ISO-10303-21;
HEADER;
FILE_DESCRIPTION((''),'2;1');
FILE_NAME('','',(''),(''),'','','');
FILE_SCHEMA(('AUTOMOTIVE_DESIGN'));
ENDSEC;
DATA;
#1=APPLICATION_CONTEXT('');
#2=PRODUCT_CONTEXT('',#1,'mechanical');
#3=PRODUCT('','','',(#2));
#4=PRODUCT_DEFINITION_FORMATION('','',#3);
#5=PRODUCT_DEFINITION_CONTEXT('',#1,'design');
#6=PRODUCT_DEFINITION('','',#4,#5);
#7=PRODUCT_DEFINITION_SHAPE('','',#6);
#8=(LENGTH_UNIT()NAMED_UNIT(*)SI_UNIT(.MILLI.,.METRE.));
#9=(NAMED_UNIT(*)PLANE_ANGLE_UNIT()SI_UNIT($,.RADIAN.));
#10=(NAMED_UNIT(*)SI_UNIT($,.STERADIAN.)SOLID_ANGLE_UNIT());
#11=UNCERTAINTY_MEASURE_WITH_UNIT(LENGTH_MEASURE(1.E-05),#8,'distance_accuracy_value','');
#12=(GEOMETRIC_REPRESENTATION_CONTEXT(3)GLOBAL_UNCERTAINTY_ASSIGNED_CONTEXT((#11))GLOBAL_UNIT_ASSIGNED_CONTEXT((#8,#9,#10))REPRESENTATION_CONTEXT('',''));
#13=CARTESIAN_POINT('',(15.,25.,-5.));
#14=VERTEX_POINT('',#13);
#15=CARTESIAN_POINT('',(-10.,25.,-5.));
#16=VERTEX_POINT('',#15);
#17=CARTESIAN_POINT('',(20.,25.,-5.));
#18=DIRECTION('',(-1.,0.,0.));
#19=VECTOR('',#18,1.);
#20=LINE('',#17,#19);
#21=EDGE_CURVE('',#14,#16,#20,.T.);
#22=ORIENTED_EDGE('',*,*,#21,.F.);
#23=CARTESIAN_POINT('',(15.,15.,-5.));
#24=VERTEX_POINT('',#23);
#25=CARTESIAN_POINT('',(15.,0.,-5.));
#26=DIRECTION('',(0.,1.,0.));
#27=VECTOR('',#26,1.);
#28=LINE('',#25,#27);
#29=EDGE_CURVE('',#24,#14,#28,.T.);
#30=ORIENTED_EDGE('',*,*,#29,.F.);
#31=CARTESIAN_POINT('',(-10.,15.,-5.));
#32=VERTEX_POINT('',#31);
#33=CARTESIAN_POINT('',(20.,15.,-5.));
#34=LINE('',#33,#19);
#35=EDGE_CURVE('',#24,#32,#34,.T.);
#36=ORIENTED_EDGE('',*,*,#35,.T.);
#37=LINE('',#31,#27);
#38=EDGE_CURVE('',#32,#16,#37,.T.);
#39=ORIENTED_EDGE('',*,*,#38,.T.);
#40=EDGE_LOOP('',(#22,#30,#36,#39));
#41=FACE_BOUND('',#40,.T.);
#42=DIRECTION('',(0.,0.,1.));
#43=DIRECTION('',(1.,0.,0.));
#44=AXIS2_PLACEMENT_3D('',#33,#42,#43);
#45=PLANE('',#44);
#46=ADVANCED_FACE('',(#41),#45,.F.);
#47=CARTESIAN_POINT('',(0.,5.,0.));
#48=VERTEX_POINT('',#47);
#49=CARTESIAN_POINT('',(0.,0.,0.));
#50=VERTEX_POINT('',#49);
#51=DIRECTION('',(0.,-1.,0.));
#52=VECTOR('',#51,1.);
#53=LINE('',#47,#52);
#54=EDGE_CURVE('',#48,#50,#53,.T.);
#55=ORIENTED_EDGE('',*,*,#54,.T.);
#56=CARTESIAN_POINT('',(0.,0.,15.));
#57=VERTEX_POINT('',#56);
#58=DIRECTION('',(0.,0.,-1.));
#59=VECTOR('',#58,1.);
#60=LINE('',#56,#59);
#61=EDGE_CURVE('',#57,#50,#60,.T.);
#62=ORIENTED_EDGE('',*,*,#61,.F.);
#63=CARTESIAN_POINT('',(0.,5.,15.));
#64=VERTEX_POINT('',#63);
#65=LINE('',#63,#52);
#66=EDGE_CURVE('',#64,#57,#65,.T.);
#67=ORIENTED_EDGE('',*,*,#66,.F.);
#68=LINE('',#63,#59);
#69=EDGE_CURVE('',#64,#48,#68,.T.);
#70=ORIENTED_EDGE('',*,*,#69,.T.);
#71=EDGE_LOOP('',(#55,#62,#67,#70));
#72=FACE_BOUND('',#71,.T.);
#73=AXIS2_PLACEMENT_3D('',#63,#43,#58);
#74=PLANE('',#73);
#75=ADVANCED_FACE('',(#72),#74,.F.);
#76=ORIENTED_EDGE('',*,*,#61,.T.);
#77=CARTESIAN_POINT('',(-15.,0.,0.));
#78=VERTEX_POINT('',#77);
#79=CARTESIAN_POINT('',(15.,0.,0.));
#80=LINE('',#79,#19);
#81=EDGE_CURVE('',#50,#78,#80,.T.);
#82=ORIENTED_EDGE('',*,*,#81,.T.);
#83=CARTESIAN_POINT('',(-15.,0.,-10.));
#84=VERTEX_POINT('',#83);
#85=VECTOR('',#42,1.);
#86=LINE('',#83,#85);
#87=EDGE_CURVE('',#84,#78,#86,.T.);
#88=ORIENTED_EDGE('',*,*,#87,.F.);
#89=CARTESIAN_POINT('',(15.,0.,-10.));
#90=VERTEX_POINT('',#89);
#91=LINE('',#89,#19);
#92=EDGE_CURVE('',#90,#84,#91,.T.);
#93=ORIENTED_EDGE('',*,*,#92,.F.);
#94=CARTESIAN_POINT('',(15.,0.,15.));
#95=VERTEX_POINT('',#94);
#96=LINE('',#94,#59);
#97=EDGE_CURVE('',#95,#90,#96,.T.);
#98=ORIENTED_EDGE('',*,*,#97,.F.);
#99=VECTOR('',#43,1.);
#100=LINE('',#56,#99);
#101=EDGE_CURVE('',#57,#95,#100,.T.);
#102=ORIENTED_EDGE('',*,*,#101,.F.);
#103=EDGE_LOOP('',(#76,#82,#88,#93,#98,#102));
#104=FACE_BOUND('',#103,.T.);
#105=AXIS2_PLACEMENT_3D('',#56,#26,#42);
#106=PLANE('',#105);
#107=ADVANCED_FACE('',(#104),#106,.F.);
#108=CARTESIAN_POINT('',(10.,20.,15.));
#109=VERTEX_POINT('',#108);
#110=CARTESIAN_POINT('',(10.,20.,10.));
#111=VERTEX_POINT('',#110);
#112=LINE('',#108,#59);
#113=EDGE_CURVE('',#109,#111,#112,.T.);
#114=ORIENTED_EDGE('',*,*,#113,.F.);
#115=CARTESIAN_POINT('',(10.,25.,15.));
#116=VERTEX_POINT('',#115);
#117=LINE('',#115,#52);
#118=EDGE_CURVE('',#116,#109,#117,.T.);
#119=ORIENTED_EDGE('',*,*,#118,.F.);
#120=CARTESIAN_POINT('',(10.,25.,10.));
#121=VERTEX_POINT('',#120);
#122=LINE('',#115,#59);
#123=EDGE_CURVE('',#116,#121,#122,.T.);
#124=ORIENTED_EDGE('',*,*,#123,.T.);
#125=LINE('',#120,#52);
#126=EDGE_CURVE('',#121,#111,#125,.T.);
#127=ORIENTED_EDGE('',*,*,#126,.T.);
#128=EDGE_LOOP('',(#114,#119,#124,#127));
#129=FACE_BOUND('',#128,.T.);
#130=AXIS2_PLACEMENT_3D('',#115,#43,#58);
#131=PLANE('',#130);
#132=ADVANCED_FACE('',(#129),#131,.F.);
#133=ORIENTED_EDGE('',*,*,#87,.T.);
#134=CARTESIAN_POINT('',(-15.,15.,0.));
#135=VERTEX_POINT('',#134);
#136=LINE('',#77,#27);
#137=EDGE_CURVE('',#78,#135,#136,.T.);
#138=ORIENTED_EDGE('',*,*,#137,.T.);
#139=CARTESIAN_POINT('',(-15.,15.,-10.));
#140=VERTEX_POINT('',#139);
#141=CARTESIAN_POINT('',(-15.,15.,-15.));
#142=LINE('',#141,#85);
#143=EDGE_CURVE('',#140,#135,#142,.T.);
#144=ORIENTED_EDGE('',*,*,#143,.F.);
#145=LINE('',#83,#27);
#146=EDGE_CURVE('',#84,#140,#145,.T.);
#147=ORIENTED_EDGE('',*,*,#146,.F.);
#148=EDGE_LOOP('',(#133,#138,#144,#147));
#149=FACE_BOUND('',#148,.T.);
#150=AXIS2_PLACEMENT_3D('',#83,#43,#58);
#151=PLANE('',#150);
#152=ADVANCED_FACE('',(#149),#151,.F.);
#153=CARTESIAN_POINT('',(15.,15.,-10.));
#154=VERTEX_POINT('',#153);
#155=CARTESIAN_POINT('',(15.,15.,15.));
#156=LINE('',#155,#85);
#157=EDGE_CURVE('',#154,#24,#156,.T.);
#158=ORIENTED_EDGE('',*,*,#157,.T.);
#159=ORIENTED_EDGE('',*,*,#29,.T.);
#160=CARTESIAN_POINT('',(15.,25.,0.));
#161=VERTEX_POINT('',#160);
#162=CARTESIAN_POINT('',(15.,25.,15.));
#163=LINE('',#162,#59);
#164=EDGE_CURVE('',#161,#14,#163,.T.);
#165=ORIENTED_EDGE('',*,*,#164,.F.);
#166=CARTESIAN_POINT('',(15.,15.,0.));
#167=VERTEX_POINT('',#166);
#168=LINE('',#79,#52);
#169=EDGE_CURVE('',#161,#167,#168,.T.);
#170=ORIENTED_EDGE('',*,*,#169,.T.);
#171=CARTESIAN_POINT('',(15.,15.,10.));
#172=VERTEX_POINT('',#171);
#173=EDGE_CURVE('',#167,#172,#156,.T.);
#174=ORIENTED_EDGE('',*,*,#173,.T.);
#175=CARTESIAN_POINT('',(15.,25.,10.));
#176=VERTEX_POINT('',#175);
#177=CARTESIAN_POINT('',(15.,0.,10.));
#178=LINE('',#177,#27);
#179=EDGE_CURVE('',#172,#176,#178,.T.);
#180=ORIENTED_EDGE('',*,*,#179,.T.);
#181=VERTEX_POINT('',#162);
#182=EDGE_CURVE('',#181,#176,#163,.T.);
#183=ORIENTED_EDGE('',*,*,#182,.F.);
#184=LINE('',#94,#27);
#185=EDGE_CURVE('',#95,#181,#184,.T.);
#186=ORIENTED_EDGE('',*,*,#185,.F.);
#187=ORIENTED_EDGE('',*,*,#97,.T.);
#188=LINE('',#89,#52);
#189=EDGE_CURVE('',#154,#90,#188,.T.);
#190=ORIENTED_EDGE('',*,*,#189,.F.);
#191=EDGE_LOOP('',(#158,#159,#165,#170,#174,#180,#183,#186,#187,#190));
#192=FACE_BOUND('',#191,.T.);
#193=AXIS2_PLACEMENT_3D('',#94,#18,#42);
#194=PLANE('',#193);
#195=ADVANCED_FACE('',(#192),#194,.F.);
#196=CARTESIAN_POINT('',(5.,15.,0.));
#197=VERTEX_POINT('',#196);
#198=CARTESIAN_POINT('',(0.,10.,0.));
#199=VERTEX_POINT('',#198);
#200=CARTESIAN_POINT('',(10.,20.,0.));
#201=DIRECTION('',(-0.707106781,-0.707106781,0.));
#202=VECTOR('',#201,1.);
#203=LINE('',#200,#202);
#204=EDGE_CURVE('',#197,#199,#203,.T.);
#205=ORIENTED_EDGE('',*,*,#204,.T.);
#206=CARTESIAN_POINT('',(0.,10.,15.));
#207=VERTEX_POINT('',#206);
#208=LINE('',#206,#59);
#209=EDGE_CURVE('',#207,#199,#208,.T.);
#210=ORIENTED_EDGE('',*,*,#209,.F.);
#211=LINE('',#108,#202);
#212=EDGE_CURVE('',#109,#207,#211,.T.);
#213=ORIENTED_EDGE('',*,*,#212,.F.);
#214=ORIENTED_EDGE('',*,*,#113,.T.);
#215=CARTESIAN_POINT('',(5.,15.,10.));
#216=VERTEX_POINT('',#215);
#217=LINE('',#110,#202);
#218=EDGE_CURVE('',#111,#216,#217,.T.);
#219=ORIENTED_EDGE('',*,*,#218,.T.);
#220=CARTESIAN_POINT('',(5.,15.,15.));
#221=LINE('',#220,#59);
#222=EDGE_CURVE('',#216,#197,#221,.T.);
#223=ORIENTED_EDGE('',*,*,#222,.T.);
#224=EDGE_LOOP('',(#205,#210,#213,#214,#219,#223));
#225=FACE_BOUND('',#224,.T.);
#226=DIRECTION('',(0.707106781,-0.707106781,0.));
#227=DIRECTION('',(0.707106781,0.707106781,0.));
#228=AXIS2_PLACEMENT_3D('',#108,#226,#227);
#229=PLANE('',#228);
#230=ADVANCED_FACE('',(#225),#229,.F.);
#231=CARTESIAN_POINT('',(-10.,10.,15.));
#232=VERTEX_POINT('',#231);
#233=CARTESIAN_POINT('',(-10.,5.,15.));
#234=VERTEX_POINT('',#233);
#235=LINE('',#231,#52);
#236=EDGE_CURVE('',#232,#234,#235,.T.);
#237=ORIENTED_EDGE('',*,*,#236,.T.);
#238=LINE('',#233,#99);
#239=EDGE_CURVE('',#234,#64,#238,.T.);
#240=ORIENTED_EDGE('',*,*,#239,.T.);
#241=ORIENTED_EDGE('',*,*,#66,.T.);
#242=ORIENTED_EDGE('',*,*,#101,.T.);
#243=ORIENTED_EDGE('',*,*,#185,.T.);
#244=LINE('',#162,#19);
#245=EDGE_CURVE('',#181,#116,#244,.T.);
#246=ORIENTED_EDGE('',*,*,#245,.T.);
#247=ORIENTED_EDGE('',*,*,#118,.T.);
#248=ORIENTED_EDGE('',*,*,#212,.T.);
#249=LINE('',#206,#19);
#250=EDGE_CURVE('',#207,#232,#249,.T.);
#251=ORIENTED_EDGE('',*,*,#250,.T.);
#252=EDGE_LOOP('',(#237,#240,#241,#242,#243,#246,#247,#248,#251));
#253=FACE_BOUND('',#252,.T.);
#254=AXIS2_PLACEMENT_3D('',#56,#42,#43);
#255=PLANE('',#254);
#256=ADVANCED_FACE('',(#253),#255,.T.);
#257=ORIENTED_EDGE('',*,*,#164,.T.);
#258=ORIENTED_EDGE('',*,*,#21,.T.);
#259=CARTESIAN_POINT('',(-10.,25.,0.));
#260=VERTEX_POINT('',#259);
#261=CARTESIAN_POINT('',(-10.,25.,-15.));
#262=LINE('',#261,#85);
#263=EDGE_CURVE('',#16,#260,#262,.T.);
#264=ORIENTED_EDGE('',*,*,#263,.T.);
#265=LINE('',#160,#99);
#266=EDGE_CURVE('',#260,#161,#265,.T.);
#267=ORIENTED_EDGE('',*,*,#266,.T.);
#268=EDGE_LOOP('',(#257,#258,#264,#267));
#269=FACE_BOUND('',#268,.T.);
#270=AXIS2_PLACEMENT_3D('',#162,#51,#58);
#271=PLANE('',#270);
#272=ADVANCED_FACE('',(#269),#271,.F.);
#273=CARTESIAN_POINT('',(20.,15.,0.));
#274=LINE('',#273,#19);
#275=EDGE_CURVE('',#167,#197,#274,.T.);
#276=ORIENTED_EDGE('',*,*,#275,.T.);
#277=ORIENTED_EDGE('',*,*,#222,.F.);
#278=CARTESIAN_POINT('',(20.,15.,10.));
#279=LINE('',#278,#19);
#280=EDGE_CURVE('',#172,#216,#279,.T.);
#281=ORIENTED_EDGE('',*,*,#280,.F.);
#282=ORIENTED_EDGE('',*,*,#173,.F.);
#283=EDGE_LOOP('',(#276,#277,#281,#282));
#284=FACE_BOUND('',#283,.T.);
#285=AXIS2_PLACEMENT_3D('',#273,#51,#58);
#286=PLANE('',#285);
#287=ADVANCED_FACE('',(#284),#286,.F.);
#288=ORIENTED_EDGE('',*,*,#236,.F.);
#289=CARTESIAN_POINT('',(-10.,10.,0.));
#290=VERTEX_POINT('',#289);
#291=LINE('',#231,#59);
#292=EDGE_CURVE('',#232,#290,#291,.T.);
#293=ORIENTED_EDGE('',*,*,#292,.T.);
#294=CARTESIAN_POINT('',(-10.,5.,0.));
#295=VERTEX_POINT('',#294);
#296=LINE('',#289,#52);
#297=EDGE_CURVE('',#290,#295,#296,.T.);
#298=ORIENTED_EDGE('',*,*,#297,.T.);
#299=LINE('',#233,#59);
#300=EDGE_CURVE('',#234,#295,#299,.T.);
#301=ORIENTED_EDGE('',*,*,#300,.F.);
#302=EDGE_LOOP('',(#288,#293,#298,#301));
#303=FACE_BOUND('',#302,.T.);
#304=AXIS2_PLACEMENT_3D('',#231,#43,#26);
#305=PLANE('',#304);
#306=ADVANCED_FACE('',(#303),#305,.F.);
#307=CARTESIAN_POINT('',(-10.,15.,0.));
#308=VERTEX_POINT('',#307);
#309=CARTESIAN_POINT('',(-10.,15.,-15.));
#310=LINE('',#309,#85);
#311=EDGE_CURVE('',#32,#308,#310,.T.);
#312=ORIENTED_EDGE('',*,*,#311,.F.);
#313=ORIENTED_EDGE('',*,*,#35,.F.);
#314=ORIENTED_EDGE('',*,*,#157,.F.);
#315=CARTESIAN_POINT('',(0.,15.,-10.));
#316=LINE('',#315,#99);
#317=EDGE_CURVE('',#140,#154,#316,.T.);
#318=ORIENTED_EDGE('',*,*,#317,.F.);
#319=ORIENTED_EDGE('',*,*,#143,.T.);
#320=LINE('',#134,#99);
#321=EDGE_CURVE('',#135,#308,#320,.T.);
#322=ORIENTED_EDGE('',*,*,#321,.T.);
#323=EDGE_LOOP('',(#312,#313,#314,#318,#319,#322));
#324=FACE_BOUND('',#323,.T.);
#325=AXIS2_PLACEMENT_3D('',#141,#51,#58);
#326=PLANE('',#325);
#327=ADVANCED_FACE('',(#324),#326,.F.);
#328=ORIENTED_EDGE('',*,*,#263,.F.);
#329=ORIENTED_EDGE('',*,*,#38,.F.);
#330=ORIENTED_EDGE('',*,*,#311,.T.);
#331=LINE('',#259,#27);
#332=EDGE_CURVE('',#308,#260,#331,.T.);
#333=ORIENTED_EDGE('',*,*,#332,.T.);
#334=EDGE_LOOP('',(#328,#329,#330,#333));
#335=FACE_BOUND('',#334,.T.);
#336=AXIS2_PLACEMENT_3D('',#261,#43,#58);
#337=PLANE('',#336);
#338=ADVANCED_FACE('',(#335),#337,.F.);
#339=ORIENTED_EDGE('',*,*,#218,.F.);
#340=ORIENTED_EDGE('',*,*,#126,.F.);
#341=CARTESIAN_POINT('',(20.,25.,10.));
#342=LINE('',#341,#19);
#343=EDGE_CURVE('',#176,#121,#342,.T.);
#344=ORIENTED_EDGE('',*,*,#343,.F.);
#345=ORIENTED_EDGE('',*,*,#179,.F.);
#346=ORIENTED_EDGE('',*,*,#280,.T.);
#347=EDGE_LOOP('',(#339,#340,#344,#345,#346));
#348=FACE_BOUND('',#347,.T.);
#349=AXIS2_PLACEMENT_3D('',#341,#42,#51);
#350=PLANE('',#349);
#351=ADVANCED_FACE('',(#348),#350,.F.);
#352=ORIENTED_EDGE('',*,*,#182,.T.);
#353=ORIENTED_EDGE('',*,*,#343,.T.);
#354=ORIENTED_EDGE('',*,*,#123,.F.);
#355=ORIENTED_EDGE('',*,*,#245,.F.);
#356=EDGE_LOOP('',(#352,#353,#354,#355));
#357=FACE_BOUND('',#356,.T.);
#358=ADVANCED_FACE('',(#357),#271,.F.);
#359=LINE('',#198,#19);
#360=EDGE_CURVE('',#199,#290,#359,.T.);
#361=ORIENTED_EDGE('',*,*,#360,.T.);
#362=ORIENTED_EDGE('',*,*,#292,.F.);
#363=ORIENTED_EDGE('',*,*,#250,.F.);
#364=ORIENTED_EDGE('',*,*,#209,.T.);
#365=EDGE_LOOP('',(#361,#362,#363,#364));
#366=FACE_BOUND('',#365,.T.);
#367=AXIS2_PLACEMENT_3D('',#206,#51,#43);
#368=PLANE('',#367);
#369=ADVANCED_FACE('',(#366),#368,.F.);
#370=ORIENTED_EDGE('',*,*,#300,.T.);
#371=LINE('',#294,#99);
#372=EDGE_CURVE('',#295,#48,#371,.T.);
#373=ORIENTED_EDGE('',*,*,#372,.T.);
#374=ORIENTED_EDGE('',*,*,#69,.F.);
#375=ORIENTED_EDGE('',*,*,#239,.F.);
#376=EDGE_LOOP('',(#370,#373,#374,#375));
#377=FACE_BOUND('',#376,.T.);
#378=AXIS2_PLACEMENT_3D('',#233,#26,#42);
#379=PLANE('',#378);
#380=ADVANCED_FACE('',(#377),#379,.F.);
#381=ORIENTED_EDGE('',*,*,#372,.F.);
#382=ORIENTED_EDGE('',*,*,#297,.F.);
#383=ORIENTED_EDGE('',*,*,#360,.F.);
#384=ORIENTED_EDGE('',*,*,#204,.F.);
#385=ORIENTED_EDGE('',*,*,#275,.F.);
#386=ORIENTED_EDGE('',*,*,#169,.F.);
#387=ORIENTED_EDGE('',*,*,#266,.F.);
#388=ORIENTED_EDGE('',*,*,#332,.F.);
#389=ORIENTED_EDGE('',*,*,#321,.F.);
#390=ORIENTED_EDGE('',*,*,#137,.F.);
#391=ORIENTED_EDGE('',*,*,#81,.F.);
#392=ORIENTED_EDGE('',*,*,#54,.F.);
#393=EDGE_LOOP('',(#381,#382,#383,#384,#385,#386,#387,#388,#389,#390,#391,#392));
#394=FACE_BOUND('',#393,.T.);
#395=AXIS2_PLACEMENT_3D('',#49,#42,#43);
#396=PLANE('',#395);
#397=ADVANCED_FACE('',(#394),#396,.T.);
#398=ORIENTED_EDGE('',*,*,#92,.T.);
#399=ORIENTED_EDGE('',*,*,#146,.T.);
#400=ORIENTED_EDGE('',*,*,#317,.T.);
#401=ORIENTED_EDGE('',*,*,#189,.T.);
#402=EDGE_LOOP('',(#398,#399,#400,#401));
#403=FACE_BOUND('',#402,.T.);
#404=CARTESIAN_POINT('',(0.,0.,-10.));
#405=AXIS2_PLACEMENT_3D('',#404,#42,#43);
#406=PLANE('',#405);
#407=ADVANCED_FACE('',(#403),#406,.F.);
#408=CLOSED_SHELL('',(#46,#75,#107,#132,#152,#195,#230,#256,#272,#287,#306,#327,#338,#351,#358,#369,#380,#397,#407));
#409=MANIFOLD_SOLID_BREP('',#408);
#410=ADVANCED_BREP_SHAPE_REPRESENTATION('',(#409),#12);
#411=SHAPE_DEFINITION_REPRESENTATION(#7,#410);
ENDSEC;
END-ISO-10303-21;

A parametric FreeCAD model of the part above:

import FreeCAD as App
import Part
import Sketcher
from FreeCAD import Vector
Q = App.Units.Quantity


def add_polygon(sketch, points):
    """Adds a closed chain of lines whose ends are joined by coincident constraints."""
    first, n = sketch.GeometryCount, len(points)
    for a, b in zip(points, points[1:] + points[:1]):
        sketch.addGeometry(Part.LineSegment(App.Vector(*a, 0), App.Vector(*b, 0)), False)
    for i in range(n):
        sketch.addConstraint(Sketcher.Constraint("Coincident", first + i, 2, first + (i + 1) % n, 1))

doc = App.newDocument("Part")
body = doc.addObject("PartDesign::Body", "Body")

# Sketch on XY plane
sketch1 = body.newObject("Sketcher::SketchObject", "Sketch")
sketch1.AttachmentSupport = (doc.getObject("XY_Plane"), [""])
sketch1.MapMode = "FlatFace"
add_polygon(sketch1, [(0, 0), (15, 0), (15, 25), (10, 25), (10, 20), (0, 10), (-10, 10), (-10, 5), (0, 5)])  # lines 0-8
sketch1.addConstraint([
    Sketcher.Constraint("Horizontal", 0),
    Sketcher.Constraint("Vertical", 1),
    Sketcher.Constraint("Horizontal", 2),
    Sketcher.Constraint("Vertical", 3),
    Sketcher.Constraint("Horizontal", 5),
    Sketcher.Constraint("Vertical", 6),
    Sketcher.Constraint("Horizontal", 7),
    Sketcher.Constraint("Vertical", 8),
    Sketcher.Constraint("Coincident", 8, 2, -1, 1),
    Sketcher.Constraint("PointOnObject", 4, 2, -2),
    Sketcher.Constraint("Equal", 2, 3),
    Sketcher.Constraint("Equal", 3, 6),
    Sketcher.Constraint("Equal", 6, 8),
    Sketcher.Constraint("DistanceX", 0, 1, 0, 2, Q("15 mm")),
    Sketcher.Constraint("DistanceX", 2, 2, 2, 1, Q("5 mm")),
    Sketcher.Constraint("DistanceX", 5, 2, 5, 1, Q("10 mm")),
    Sketcher.Constraint("DistanceY", 1, 1, 1, 2, Q("25 mm")),
])
pad1 = body.newObject("PartDesign::Pad", "Pad")
pad1.Profile = sketch1
pad1.Length = 15

# Sketch on XY plane
sketch2 = body.newObject("Sketcher::SketchObject", "Sketch001")
sketch2.AttachmentSupport = (doc.getObject("XY_Plane"), [""])
sketch2.MapMode = "FlatFace"
add_polygon(sketch2, [(15, 25), (15, 0), (-15, 0), (-15, 25)])  # lines 0-3
sketch2.addConstraint([
    Sketcher.Constraint("Vertical", 0),
    Sketcher.Constraint("Horizontal", 1),
    Sketcher.Constraint("Vertical", 2),
    Sketcher.Constraint("Horizontal", 3),
    Sketcher.Constraint("Symmetric", 0, 2, 1, 2, -1, 1),
    Sketcher.Constraint("DistanceX", 1, 2, 1, 1, Q("30 mm")),
    Sketcher.Constraint("DistanceY", 0, 2, 0, 1, Q("25 mm")),
])
pad2 = body.newObject("PartDesign::Pad", "Pad001")
pad2.Profile = sketch2
pad2.Length = 10
pad2.Reversed = True

# Sketch on XY plane
sketch3 = body.newObject("Sketcher::SketchObject", "Sketch002")
sketch3.AttachmentSupport = (doc.getObject("XY_Plane"), [""])
sketch3.MapMode = "FlatFace"
add_polygon(sketch3, [(-15, 25), (-15, 15), (-10, 15), (-10, 25)])  # lines 0-3
sketch3.addConstraint([
    Sketcher.Constraint("Vertical", 0),
    Sketcher.Constraint("Horizontal", 1),
    Sketcher.Constraint("Vertical", 2),
    Sketcher.Constraint("Horizontal", 3),
    Sketcher.Constraint("DistanceX", 1, 1, 1, 2, Q("5 mm")),
    Sketcher.Constraint("DistanceY", 0, 2, 0, 1, Q("10 mm")),
    Sketcher.Constraint("DistanceX", 0, 2, -1, 1, Q("15 mm")),
    Sketcher.Constraint("DistanceY", -1, 1, 0, 2, Q("15 mm")),
])
pocket1 = body.newObject("PartDesign::Pocket", "Pocket")
pocket1.Profile = sketch3
pocket1.Length = 15

# Sketch on YZ plane
sketch4 = body.newObject("Sketcher::SketchObject", "Sketch003")
sketch4.AttachmentSupport = (doc.getObject("YZ_Plane"), [""])
sketch4.MapMode = "FlatFace"
sketch4.AttachmentOffset = App.Placement(Vector(0, 0, -10), App.Rotation())
add_polygon(sketch4, [(25, -10), (15, -10), (15, -5), (25, -5)])  # lines 0-3
sketch4.addConstraint([
    Sketcher.Constraint("Horizontal", 0),
    Sketcher.Constraint("Vertical", 1),
    Sketcher.Constraint("Horizontal", 2),
    Sketcher.Constraint("Vertical", 3),
    Sketcher.Constraint("DistanceX", 0, 2, 0, 1, Q("10 mm")),
    Sketcher.Constraint("DistanceY", 1, 1, 1, 2, Q("5 mm")),
    Sketcher.Constraint("DistanceX", -1, 1, 0, 2, Q("15 mm")),
    Sketcher.Constraint("DistanceY", 0, 2, -1, 1, Q("10 mm")),
])
pocket2 = body.newObject("PartDesign::Pocket", "Pocket001")
pocket2.Profile = sketch4
pocket2.Length = 30
pocket2.Reversed = True

# Sketch on YZ plane
sketch5 = body.newObject("Sketcher::SketchObject", "Sketch004")
sketch5.AttachmentSupport = (doc.getObject("YZ_Plane"), [""])
sketch5.MapMode = "FlatFace"
sketch5.AttachmentOffset = App.Placement(Vector(0, 0, -10), App.Rotation())
add_polygon(sketch5, [(25, 0), (15, 0), (15, 10), (25, 10)])  # lines 0-3
sketch5.addConstraint([
    Sketcher.Constraint("Horizontal", 0),
    Sketcher.Constraint("Vertical", 1),
    Sketcher.Constraint("Horizontal", 2),
    Sketcher.Constraint("Vertical", 3),
    Sketcher.Constraint("PointOnObject", 0, 2, -1),
    Sketcher.Constraint("Equal", 2, 1),
    Sketcher.Constraint("DistanceX", 0, 2, 0, 1, Q("10 mm")),
    Sketcher.Constraint("DistanceX", -1, 1, 0, 2, Q("15 mm")),
])
pocket3 = body.newObject("PartDesign::Pocket", "Pocket002")
pocket3.Profile = sketch5
pocket3.Length = 30
pocket3.Reversed = True

doc.recompute()
